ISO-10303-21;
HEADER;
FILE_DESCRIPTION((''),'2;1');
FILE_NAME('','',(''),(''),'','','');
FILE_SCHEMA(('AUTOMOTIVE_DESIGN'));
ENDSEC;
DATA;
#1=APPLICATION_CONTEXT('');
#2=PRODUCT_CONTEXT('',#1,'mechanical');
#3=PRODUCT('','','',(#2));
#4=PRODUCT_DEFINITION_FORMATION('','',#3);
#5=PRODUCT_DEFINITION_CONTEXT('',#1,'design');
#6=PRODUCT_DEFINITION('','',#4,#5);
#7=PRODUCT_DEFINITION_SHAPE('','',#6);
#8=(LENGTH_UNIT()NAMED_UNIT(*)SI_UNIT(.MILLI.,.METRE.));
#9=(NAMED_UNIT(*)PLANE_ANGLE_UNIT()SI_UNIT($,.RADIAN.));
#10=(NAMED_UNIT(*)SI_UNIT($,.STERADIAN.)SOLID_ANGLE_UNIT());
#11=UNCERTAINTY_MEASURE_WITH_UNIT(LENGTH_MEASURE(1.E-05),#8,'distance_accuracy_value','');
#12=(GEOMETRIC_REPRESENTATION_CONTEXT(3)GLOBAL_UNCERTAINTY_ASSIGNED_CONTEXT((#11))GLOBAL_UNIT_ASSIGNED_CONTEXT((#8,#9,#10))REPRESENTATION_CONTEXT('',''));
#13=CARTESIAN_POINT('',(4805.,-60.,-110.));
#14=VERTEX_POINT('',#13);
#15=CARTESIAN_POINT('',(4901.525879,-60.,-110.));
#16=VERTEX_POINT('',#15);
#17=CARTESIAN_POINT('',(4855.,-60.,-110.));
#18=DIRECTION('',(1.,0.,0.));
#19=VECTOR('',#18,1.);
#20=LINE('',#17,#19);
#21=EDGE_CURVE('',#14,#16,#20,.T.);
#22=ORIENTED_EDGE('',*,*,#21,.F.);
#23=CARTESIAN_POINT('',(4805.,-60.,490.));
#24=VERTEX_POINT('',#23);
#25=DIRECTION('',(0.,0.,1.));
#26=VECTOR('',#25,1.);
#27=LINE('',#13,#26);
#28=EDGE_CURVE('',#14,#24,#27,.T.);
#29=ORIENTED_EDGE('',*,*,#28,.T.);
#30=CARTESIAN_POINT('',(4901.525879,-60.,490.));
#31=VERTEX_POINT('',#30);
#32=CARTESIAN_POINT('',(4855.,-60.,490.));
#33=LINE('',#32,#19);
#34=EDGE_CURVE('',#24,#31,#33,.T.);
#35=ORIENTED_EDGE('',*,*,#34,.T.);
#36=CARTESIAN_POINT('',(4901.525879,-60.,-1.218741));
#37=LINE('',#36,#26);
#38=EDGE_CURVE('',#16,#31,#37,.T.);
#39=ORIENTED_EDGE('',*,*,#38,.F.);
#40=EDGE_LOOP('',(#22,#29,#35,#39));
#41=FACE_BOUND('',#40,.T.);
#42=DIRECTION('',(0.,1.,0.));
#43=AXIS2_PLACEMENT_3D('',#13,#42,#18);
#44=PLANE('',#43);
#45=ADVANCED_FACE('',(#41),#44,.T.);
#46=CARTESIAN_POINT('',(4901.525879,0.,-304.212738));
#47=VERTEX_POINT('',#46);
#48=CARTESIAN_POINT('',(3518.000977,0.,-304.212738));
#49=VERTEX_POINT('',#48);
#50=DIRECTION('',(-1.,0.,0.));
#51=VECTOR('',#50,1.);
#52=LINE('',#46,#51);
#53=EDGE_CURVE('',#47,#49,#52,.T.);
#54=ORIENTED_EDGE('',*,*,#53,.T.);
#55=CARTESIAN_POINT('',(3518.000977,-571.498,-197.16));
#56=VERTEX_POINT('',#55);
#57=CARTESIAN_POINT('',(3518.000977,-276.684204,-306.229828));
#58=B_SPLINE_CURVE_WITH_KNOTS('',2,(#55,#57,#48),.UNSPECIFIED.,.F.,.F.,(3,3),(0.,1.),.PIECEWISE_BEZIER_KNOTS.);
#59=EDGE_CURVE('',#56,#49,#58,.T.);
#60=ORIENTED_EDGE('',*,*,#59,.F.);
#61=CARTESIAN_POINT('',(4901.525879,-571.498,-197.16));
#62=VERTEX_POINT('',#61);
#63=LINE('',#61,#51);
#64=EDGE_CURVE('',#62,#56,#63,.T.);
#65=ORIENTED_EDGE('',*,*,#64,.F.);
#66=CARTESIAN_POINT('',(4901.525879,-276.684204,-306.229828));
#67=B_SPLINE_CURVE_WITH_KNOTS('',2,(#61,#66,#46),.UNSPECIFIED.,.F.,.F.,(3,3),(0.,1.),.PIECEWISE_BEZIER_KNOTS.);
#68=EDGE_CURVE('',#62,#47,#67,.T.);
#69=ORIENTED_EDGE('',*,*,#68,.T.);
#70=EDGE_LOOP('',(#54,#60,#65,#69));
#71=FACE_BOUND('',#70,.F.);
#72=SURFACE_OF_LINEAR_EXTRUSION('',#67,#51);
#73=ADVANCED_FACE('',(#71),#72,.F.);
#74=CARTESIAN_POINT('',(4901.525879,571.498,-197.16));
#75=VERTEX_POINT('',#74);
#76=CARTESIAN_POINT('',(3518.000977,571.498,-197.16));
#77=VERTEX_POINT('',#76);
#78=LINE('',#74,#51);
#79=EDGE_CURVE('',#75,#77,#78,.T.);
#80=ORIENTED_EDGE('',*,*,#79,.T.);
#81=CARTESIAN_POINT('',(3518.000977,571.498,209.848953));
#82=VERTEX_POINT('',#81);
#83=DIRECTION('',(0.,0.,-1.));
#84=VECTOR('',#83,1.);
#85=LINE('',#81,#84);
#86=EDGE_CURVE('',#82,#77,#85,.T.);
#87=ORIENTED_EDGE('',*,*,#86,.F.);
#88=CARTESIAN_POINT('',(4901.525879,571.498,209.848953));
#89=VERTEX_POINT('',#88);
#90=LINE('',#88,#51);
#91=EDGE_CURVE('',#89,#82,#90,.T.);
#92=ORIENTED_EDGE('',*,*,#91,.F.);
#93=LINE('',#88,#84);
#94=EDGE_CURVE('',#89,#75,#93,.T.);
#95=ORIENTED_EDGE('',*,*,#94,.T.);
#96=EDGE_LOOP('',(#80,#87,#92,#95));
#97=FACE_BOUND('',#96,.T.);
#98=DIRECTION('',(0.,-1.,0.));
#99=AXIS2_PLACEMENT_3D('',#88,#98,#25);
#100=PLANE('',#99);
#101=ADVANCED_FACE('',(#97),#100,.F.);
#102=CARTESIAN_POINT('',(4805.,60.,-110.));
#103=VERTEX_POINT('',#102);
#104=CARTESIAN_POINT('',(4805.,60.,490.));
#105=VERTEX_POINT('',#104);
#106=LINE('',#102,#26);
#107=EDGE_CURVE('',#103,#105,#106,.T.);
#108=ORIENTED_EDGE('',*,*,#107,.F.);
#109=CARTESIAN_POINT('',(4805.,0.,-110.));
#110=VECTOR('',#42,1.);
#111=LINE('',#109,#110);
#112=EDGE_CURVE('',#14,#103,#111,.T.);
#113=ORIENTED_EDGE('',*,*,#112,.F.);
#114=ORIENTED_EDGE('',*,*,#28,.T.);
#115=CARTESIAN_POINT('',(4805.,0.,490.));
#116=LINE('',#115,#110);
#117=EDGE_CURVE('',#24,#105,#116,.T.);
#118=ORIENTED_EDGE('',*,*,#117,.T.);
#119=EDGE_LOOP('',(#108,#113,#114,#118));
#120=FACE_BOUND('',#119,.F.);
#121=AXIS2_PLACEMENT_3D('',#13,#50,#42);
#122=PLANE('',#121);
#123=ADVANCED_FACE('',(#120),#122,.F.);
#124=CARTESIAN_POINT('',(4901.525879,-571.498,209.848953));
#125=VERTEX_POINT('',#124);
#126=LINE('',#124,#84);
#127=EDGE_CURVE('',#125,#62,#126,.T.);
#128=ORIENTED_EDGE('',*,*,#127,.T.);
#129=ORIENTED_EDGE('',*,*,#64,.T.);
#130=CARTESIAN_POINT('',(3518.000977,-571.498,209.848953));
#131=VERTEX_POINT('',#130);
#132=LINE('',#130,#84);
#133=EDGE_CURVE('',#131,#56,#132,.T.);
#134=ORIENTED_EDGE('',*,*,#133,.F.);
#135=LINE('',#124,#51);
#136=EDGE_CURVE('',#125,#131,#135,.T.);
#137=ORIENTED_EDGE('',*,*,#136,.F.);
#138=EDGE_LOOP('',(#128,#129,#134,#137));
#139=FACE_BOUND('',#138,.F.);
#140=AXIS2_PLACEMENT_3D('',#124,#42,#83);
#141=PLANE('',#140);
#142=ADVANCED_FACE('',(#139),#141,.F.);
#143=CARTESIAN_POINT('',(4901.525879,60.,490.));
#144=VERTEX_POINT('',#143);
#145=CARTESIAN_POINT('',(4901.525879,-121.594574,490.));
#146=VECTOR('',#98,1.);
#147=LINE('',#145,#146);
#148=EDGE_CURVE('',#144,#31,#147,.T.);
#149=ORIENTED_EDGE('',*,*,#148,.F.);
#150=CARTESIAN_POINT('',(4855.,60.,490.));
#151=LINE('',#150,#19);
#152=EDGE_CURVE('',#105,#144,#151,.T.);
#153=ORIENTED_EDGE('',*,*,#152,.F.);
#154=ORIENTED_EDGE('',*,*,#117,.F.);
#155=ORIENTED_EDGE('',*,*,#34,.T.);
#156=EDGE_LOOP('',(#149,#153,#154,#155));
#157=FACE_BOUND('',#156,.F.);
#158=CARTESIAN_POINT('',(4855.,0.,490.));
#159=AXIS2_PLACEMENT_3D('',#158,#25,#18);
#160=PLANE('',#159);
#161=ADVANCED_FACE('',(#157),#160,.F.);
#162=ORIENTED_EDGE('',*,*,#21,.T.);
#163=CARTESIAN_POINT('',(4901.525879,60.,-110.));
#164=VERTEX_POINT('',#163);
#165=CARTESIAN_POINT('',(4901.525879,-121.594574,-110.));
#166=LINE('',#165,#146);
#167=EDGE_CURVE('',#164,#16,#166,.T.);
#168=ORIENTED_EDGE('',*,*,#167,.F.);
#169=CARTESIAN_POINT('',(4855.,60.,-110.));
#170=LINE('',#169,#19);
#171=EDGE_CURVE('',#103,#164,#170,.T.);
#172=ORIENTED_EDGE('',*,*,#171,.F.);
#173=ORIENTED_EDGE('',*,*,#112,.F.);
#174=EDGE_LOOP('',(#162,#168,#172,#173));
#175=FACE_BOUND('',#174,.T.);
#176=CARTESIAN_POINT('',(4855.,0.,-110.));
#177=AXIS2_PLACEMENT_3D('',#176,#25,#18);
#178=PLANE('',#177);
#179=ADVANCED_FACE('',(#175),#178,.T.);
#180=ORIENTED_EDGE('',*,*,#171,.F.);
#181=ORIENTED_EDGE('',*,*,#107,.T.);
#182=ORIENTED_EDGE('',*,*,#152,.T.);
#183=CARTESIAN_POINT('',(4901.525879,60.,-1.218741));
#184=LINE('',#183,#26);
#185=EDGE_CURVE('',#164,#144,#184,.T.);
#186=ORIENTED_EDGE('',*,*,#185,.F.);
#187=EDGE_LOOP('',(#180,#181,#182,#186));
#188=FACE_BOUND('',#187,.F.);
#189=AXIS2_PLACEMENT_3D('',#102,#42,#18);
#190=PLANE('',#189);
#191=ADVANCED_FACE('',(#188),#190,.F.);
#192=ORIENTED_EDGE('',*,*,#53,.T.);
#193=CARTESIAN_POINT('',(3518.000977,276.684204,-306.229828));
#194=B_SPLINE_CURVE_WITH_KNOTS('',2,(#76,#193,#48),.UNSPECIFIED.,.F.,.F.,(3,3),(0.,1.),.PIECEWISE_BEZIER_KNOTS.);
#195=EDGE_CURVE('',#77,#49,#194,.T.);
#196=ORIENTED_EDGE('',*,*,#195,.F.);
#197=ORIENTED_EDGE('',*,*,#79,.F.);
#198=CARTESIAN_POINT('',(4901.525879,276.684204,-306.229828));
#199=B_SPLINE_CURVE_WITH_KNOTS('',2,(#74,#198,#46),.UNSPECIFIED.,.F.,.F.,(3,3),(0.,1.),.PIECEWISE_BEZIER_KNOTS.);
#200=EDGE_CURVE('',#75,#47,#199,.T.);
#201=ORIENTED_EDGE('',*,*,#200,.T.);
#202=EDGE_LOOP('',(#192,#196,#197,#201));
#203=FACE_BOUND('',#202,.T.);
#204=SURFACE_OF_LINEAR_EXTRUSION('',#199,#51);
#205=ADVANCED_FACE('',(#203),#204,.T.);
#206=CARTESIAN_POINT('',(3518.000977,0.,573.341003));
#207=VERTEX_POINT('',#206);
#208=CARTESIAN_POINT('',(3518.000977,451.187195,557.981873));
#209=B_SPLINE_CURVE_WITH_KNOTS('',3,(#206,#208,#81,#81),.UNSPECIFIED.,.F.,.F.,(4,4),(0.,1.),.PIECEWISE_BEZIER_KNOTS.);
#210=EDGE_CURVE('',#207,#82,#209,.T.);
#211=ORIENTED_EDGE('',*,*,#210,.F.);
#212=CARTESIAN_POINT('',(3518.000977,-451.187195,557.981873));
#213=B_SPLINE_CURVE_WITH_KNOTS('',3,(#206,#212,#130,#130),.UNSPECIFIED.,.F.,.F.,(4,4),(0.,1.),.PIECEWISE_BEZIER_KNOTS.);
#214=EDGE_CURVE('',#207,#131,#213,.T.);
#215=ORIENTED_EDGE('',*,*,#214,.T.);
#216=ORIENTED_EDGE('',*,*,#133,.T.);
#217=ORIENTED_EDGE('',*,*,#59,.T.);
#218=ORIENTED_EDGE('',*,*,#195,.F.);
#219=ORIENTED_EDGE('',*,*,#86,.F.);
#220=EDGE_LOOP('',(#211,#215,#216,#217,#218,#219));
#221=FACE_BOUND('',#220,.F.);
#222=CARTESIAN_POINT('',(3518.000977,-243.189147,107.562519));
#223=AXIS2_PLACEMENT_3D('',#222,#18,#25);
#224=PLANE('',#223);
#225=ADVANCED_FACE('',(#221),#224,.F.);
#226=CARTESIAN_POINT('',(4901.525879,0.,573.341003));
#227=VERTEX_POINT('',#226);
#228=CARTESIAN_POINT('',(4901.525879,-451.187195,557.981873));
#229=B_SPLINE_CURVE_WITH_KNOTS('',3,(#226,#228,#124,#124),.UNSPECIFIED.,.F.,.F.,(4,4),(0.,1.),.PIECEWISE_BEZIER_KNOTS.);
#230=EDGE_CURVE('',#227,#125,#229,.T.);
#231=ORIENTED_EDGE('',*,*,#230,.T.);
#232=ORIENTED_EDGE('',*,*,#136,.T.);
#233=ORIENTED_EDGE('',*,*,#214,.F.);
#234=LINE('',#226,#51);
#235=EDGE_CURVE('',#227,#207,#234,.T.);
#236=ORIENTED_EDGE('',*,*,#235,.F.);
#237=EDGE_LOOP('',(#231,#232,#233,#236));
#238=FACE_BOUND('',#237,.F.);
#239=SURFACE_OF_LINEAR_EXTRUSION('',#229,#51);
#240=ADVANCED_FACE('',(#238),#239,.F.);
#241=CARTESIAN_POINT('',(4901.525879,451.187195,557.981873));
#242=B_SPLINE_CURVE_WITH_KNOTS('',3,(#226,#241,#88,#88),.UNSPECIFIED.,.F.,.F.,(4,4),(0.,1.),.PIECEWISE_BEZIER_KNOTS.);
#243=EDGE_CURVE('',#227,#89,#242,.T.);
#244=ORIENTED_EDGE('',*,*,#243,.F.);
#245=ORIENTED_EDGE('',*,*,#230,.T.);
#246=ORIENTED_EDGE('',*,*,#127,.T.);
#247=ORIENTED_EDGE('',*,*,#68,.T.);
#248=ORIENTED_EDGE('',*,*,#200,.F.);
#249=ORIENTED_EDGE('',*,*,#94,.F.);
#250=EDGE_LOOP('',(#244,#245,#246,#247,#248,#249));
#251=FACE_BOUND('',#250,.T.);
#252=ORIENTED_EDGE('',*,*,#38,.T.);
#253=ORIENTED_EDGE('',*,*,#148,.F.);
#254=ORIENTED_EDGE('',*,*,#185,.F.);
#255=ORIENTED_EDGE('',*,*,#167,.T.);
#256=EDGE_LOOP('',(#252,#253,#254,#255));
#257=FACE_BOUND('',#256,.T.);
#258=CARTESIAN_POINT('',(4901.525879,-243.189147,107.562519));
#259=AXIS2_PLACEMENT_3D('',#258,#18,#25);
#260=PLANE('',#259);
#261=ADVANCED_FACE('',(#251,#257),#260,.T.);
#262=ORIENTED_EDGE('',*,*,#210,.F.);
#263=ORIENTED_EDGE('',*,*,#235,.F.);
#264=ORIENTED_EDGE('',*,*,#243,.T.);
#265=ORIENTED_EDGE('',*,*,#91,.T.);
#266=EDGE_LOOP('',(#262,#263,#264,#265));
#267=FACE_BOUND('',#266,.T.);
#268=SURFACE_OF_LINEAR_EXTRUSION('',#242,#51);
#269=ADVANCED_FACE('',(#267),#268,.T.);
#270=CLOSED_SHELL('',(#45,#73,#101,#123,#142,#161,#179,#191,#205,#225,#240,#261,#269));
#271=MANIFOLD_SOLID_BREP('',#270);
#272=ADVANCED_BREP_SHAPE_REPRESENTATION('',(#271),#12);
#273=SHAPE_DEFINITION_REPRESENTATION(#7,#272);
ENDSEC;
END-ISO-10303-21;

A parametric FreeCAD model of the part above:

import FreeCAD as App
import Part
import Sketcher
from FreeCAD import Vector
Q = App.Units.Quantity


def add_polygon(sketch, points):
    """Adds a closed chain of lines whose ends are joined by coincident constraints."""
    first, n = sketch.GeometryCount, len(points)
    for a, b in zip(points, points[1:] + points[:1]):
        sketch.addGeometry(Part.LineSegment(App.Vector(*a, 0), App.Vector(*b, 0)), False)
    for i in range(n):
        sketch.addConstraint(Sketcher.Constraint("Coincident", first + i, 2, first + (i + 1) % n, 1))

doc = App.newDocument("Part")
params = doc.addObject("Spreadsheet::Sheet", "Params")
for row, (alias, value) in enumerate([
    ("sketch1_width", "100 mm"),
    ("sketch1_height", "120 mm"),
    ("pad1_length", "600 mm"),
], start=1):
    params.set(f"A{row}", alias)
    params.set(f"B{row}", "=" + value)
    params.setAlias(f"B{row}", alias)

body = doc.addObject("PartDesign::Body", "Body")

# Sketch on XY plane
sketch1 = body.newObject("Sketcher::SketchObject", "Sketch")
sketch1.AttachmentSupport = (doc.getObject("XY_Plane"), [""])
sketch1.MapMode = "FlatFace"
sketch1.AttachmentOffset = App.Placement(Vector(0, 0, -110), App.Rotation())
add_polygon(sketch1, [(4805, 60), (4805, -60), (4905, -60), (4905, 60)])  # lines 0-3
sketch1.addConstraint(Sketcher.Constraint("Vertical", 0))
sketch1.addConstraint(Sketcher.Constraint("Horizontal", 1))
sketch1.addConstraint(Sketcher.Constraint("Vertical", 2))
sketch1.addConstraint(Sketcher.Constraint("Horizontal", 3))
sketch1.addConstraint(Sketcher.Constraint("DistanceX", 1, 1, 1, 2, Q("100 mm")))
sketch1.addConstraint(Sketcher.Constraint("DistanceY", 0, 2, 0, 1, Q("120 mm")))
sketch1.addConstraint(Sketcher.Constraint("DistanceX", -1, 1, 0, 2, Q("4805 mm")))
sketch1.addConstraint(Sketcher.Constraint("DistanceY", 0, 2, -1, 1, Q("60 mm")))
sketch1.setExpression("Constraints[8]", "Params.sketch1_width")
sketch1.setExpression("Constraints[9]", "Params.sketch1_height")
pad1 = body.newObject("PartDesign::Pad", "Pad")
pad1.Profile = sketch1
pad1.setExpression("Length", "Params.pad1_length")
body2 = doc.addObject("PartDesign::Body", "Body001")

# Sketch on YZ plane
sketch2 = body2.newObject("Sketcher::SketchObject", "Sketch001")
sketch2.AttachmentSupport = (doc.getObject("YZ_Plane001"), [""])
sketch2.MapMode = "FlatFace"
sketch2.AttachmentOffset = App.Placement(Vector(0, 0, 4700), App.Rotation())
sketch2.addGeometry(Part.BSplineCurve([Vector(0, 573.341003, 0), Vector(-451.187195, 557.981873, 0), Vector(-571.498, 209.848953, 0), Vector(-571.498, 209.848953, 0)], [4, 4], [0, 1], False, 3, [1, 1, 1, 1], False), False)
sketch2.addGeometry(Part.LineSegment(Vector(-571.498, 209.848953, 0), Vector(-571.498, -197.16, 0)), False)
sketch2.addGeometry(Part.BSplineCurve([Vector(-571.498, -197.16, 0), Vector(-276.684204, -306.229828, 0), Vector(0, -304.212738, 0)], [3, 3], [0, 1], False, 2, [1, 1, 1], False), False)
sketch2.addGeometry(Part.LineSegment(Vector(0, -304.212738, 0), Vector(0, 573.341003, 0)), False)
sketch2.addConstraint(Sketcher.Constraint("Block", 0))
sketch2.addConstraint(Sketcher.Constraint("Block", 2))
sketch2.addConstraint(Sketcher.Constraint("Coincident", 0, 2, 1, 1))
sketch2.addConstraint(Sketcher.Constraint("Coincident", 1, 2, 2, 1))
sketch2.addConstraint(Sketcher.Constraint("Coincident", 2, 2, 3, 1))
sketch2.addConstraint(Sketcher.Constraint("Coincident", 3, 2, 0, 1))

# Sketch on XY plane
sketch3 = body2.newObject("Sketcher::SketchObject", "Sketch002")
sketch3.AttachmentSupport = (doc.getObject("XY_Plane001"), [""])
sketch3.MapMode = "FlatFace"
sketch3.AttachmentOffset = App.Placement(Vector(0, 0, 0.31053), App.Rotation())
sketch3.addGeometry(Part.LineSegment(Vector(4902, 0, 0), Vector(3518, 0, 0)), False)
sketch3.addConstraint(Sketcher.Constraint("Horizontal", 0))
sketch3.addConstraint(Sketcher.Constraint("PointOnObject", 0, 1, -1))
sketch3.addConstraint(Sketcher.Constraint("DistanceX", 0, 2, 0, 1, Q("1383.524902 mm")))
sketch3.addConstraint(Sketcher.Constraint("DistanceX", -1, 1, 0, 1, Q("4901.525879 mm")))
doc.recompute()

additivepipe = body2.newObject("PartDesign::AdditivePipe", "AdditivePipe")
additivepipe.Profile = sketch2
additivepipe.Spine = (sketch3, ["Edge1"])
body3 = doc.addObject("PartDesign::Body", "Body002")
doc.recompute()

mirroring = doc.addObject("Part::Mirroring", "Mirroring")
mirroring.Source = body2
mirroring.Base = Vector(0, 0, 0)
mirroring.Normal = Vector(0, 1, 0)
body3.BaseFeature = mirroring
doc.recompute()

boolean = body3.newObject("PartDesign::Boolean", "Boolean")
boolean.Type = "Fuse"
boolean.addObjects([body2])
doc.recompute()

boolean2 = body3.newObject("PartDesign::Boolean", "Boolean001")
boolean2.Type = "Cut"
boolean2.addObjects([body])
mirroring.Visibility = False

doc.recompute()
